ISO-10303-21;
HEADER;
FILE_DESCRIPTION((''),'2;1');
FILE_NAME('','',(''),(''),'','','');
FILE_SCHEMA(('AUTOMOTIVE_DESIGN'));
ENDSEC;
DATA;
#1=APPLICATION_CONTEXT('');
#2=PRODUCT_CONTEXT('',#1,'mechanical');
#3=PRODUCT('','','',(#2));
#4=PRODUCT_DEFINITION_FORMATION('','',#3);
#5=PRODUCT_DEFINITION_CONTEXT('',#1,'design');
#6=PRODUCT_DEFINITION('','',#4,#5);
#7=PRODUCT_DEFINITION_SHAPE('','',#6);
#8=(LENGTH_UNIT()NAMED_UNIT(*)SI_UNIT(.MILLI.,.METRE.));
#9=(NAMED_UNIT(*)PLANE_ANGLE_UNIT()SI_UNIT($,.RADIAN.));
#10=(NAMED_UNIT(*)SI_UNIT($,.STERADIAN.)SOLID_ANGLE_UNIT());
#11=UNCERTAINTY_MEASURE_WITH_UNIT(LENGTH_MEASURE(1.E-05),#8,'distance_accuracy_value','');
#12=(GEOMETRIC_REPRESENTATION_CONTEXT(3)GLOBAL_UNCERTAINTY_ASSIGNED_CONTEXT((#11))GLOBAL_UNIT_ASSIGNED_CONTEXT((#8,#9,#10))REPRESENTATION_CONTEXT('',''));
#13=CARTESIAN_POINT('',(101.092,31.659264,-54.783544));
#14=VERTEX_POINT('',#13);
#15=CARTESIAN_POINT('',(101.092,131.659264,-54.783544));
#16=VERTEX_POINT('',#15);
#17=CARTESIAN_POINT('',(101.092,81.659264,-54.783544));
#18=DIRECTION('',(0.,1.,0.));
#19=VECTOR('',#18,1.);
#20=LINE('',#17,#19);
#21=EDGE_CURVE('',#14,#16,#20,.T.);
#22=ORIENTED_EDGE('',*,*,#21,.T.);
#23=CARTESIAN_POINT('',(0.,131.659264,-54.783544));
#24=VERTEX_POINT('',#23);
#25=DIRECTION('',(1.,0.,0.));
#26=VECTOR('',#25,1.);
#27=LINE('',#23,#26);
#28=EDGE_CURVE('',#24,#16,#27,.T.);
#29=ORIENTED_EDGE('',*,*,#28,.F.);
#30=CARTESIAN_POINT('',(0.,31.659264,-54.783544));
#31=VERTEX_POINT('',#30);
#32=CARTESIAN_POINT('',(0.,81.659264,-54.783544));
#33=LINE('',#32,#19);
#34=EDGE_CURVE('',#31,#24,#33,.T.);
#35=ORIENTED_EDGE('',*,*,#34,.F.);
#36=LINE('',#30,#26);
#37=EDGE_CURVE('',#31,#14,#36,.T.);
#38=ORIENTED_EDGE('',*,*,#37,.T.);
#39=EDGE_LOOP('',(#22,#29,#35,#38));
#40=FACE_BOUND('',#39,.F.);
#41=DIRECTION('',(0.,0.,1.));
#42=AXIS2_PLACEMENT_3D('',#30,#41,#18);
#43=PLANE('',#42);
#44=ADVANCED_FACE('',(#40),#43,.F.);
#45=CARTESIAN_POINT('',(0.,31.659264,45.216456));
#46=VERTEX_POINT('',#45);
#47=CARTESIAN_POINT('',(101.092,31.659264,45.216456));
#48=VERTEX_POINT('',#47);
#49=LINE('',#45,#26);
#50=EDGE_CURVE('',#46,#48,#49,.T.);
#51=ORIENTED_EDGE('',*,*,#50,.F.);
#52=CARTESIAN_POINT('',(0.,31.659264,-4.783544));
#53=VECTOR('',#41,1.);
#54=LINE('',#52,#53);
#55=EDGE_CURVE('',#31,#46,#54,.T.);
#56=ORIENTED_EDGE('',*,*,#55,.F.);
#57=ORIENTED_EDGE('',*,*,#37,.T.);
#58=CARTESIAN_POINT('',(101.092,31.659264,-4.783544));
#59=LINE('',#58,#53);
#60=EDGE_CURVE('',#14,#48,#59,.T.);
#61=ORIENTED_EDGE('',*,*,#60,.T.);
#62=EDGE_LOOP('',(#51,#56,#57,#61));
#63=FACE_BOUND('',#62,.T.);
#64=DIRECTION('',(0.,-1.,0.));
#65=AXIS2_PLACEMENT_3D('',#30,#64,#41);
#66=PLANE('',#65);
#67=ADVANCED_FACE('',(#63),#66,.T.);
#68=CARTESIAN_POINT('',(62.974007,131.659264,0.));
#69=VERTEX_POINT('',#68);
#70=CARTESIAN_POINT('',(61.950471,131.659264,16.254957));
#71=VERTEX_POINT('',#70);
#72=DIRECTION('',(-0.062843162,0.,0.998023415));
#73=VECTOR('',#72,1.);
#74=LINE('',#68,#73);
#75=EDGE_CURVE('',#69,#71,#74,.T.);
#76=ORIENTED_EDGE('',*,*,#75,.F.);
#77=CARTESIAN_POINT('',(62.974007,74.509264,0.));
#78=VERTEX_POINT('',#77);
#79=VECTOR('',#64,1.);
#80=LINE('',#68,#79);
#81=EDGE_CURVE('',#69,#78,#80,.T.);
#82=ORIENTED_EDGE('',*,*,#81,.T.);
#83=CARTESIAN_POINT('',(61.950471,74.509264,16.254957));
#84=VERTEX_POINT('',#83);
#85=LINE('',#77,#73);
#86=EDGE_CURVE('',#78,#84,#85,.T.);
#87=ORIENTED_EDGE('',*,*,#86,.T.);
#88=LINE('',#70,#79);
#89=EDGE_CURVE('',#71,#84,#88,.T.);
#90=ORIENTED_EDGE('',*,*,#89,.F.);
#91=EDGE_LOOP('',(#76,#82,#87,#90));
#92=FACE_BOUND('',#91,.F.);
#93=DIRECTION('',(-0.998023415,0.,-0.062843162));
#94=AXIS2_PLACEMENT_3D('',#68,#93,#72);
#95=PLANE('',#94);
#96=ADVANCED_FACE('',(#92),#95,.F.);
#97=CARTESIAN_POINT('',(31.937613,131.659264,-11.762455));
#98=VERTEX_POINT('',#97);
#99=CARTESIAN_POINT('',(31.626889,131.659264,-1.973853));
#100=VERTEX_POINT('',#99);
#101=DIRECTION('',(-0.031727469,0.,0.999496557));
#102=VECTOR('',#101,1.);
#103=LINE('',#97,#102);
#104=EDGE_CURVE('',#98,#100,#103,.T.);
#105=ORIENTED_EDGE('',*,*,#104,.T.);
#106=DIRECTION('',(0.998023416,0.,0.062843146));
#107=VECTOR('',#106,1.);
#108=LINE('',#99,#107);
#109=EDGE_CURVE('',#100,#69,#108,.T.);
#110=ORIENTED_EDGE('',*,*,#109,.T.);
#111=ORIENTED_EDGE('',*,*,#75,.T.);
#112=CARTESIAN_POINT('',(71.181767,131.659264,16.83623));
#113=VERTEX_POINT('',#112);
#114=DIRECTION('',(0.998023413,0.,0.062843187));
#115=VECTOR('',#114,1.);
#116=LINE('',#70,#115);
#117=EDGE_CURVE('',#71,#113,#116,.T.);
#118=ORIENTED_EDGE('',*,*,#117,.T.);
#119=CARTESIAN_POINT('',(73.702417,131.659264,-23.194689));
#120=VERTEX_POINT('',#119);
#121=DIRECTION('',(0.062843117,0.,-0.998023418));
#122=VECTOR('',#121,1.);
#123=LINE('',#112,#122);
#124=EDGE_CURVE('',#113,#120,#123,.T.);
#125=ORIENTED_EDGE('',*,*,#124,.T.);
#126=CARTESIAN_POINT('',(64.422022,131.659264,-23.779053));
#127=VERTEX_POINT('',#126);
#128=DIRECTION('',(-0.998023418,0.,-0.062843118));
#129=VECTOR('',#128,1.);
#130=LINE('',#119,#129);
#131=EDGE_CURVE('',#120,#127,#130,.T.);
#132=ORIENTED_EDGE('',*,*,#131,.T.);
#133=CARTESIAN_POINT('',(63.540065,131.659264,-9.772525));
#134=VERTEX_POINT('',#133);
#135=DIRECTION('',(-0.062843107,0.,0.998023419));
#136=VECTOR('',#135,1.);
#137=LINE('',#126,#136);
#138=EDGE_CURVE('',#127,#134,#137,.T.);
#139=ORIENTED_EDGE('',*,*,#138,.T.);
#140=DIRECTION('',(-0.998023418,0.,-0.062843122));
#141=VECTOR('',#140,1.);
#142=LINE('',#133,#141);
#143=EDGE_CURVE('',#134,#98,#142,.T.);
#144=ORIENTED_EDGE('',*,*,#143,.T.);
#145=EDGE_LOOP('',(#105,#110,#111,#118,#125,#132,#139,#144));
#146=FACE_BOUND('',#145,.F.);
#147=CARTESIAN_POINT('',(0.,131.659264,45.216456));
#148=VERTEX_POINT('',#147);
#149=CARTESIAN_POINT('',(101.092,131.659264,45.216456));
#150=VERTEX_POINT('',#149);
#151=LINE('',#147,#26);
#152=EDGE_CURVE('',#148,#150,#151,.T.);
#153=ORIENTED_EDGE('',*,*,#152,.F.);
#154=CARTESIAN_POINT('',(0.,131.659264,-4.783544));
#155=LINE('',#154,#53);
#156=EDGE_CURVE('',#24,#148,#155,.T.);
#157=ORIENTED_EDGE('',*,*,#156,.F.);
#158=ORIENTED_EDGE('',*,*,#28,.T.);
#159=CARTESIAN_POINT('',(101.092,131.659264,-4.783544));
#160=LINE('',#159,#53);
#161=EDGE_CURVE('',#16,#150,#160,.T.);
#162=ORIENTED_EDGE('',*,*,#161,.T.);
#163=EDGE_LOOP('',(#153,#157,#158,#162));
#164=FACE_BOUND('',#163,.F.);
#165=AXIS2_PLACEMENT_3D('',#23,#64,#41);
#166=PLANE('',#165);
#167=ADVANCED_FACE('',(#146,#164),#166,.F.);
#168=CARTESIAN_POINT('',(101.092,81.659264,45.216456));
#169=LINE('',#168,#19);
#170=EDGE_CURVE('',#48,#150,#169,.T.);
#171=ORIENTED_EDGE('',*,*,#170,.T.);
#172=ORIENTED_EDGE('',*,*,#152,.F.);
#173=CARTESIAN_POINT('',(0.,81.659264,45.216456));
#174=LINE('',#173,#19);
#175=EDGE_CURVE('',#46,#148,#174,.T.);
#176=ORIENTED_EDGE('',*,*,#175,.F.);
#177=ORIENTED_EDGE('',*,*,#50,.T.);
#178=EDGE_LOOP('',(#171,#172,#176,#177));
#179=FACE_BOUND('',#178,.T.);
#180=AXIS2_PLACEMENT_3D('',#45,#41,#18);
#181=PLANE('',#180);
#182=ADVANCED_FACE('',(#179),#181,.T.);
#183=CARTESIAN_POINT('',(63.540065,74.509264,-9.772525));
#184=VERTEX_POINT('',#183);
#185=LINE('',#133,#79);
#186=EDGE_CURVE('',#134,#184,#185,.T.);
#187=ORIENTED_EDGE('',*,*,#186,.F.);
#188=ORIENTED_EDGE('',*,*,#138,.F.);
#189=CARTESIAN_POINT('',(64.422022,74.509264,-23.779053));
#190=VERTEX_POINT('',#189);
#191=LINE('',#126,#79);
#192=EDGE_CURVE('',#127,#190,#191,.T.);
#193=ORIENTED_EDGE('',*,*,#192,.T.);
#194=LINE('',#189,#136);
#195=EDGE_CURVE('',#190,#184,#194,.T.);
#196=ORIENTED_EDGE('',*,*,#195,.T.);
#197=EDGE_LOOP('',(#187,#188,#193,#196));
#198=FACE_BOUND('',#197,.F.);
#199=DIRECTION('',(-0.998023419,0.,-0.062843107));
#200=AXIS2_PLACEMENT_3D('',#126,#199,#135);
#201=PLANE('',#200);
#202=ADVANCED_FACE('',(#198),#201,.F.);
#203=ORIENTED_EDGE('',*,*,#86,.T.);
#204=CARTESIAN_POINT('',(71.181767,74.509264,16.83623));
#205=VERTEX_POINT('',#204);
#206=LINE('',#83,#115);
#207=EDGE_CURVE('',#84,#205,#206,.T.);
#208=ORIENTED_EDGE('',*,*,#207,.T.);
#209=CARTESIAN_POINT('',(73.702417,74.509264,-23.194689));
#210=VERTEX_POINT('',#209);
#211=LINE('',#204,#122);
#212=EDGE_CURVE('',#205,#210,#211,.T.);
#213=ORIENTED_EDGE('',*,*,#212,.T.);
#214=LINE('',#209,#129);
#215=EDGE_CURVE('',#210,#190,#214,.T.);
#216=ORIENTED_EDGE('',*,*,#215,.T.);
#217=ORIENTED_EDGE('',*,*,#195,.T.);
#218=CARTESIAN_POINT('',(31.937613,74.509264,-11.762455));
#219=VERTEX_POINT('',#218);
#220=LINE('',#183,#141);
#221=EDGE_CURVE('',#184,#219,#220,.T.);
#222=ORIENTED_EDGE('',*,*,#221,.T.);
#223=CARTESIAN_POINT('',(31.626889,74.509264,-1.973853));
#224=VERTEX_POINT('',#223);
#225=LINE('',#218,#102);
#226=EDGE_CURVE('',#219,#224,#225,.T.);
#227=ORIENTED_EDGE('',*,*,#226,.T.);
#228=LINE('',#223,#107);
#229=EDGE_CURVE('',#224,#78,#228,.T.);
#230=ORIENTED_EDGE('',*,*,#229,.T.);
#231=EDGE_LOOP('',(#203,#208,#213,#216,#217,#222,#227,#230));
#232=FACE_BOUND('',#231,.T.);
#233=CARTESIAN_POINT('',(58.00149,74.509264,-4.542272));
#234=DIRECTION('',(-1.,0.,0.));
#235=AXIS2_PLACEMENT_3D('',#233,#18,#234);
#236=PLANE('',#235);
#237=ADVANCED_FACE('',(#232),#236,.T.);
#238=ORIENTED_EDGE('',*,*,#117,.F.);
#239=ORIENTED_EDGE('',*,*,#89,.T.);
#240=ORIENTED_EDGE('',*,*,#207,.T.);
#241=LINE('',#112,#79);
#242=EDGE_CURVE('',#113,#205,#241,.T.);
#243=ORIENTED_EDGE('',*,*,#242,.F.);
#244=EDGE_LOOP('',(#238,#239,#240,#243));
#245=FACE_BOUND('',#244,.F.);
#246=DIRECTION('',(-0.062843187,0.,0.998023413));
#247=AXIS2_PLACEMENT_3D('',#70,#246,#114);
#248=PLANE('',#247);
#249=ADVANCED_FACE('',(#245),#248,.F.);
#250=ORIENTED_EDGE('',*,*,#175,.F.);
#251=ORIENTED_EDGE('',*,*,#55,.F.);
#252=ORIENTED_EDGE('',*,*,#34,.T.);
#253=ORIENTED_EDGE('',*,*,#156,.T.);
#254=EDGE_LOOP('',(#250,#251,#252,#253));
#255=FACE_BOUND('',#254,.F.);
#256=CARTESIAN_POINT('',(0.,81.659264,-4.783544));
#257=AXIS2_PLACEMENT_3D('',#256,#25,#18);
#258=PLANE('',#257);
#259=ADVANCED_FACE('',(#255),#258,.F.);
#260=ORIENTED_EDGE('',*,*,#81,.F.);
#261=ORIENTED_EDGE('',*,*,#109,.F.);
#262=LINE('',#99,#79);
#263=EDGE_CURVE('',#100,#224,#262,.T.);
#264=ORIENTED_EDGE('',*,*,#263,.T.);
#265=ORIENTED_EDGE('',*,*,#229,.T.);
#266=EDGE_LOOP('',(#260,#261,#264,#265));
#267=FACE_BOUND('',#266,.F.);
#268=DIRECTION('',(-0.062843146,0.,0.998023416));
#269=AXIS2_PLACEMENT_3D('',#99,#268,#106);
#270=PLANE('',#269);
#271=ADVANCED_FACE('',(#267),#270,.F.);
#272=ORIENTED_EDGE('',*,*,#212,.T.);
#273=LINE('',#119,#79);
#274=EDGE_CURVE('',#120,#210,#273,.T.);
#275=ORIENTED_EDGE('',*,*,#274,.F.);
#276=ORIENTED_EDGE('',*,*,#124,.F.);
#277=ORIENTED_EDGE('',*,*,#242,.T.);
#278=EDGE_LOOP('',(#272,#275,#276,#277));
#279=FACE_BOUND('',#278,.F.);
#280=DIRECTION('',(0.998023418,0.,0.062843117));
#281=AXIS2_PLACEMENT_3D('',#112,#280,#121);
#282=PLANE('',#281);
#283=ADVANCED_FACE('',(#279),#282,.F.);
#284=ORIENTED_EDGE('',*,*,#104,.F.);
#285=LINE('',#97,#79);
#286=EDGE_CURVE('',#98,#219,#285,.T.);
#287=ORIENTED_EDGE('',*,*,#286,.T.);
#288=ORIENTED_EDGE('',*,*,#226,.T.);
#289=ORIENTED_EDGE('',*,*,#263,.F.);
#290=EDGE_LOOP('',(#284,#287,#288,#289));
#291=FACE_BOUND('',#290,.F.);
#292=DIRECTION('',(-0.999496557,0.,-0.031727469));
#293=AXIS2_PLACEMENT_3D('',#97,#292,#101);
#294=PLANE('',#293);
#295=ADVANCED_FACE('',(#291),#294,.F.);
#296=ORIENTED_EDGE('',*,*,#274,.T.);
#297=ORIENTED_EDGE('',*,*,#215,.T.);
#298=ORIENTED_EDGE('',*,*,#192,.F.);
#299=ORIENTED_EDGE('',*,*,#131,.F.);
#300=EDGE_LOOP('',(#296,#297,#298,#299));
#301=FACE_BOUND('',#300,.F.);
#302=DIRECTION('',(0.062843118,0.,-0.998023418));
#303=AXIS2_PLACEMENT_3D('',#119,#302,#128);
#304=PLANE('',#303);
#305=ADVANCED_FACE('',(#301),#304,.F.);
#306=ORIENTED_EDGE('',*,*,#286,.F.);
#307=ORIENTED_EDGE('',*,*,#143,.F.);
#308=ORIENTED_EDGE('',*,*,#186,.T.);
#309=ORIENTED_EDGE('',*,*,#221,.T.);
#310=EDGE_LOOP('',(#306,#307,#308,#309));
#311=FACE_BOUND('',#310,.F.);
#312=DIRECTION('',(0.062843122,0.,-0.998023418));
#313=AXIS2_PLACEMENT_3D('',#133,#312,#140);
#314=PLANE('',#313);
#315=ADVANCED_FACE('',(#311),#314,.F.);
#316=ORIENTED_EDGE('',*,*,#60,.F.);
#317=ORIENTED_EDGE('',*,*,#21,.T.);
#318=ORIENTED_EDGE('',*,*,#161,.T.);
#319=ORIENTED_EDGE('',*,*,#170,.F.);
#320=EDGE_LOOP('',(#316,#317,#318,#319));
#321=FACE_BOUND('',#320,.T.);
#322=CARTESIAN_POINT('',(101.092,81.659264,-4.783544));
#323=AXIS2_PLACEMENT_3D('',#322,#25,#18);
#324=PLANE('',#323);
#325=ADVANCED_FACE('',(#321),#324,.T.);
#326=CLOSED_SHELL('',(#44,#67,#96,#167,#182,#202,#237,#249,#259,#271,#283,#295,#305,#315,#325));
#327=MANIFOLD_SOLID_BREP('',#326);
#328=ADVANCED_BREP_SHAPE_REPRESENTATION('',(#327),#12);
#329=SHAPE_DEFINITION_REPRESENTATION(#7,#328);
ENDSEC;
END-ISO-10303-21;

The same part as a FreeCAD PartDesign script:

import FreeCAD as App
import Part
import Sketcher
from FreeCAD import Vector
Q = App.Units.Quantity

doc = App.newDocument("Part")
body = doc.addObject("PartDesign::Body", "Body")

sketch1 = doc.addObject("Sketcher::SketchObject", "Sketch")
body.addObject(sketch1)
sketch1.AttachmentSupport = (doc.YZ_Plane, [""])
sketch1.MapMode = "FlatFace"
sketch1.addGeometry([
    Part.LineSegment(Vector(32, 45, 0), Vector(32, -55, 0)),
    Part.LineSegment(Vector(32, -55, 0), Vector(132, -55, 0)),
    Part.LineSegment(Vector(132, -55, 0), Vector(132, 45, 0)),
    Part.LineSegment(Vector(132, 45, 0), Vector(32, 45, 0)),
], False)
sketch1.addConstraint([
    Sketcher.Constraint("Coincident", 0, 2, 1, 1),
    Sketcher.Constraint("Coincident", 1, 2, 2, 1),
    Sketcher.Constraint("Coincident", 2, 2, 3, 1),
    Sketcher.Constraint("Coincident", 3, 2, 0, 1),
    Sketcher.Constraint("Vertical", 0),
    Sketcher.Constraint("Horizontal", 1),
    Sketcher.Constraint("Vertical", 2),
    Sketcher.Constraint("Horizontal", 3),
    Sketcher.Constraint("Equal", 3, 0),
    Sketcher.Constraint("DistanceX", 1, 1, 1, 2, 100.0),
    Sketcher.Constraint("DistanceX", -1, 1, 0, 2, 31.659264),
    Sketcher.Constraint("DistanceY", 0, 2, -1, 1, 54.783544),
])
pad1 = doc.addObject("PartDesign::Pad", "Pad")
body.addObject(pad1)
pad1.Profile = sketch1
pad1.Length = Q("3.98 in")

sketch2 = doc.addObject("Sketcher::SketchObject", "Sketch001")
body.addObject(sketch2)
sketch2.AttachmentSupport = (doc.XZ_Plane, [""])
sketch2.MapMode = "FlatFace"
sketch2.AttachmentOffset = App.Placement(Vector(0, 0, -131.659264), App.Rotation())
sketch2.addGeometry([
    Part.LineSegment(Vector(71, 17, 0), Vector(74, -23, 0)),
    Part.LineSegment(Vector(74, -23, 0), Vector(64, -24, 0)),
    Part.LineSegment(Vector(64, -24, 0), Vector(64, -10, 0)),
    Part.LineSegment(Vector(64, -10, 0), Vector(32, -12, 0)),
    Part.LineSegment(Vector(32, -12, 0), Vector(32, -2, 0)),
    Part.LineSegment(Vector(32, -2, 0), Vector(63, 0, 0)),
    Part.LineSegment(Vector(63, 0, 0), Vector(62, 16, 0)),
    Part.LineSegment(Vector(62, 16, 0), Vector(71, 17, 0)),
], False)
sketch2.addConstraint([
    Sketcher.Constraint("Coincident", 0, 2, 1, 1),
    Sketcher.Constraint("Coincident", 1, 2, 2, 1),
    Sketcher.Constraint("Coincident", 2, 2, 3, 1),
    Sketcher.Constraint("Coincident", 3, 2, 4, 1),
    Sketcher.Constraint("Coincident", 4, 2, 5, 1),
    Sketcher.Constraint("Coincident", 5, 2, 6, 1),
    Sketcher.Constraint("Coincident", 6, 2, 7, 1),
    Sketcher.Constraint("Coincident", 7, 2, 0, 1),
    Sketcher.Constraint("PointOnObject", 5, 2, -1),
    Sketcher.Constraint("Perpendicular", 0, 1),
    Sketcher.Constraint("Perpendicular", 1, 2),
    Sketcher.Constraint("Perpendicular", 2, 3),
    Sketcher.Constraint("Parallel", 3, 5),
    Sketcher.Constraint("Perpendicular", 5, 6),
    Sketcher.Constraint("Perpendicular", 6, 7),
    Sketcher.Constraint("DistanceX", -1, 1, 1, 2, Q("2.5363001 in")),
    Sketcher.Constraint("Distance", 0, 40.1102),
    Sketcher.Constraint("Distance", 5, 31.409201),
    Sketcher.Constraint("DistanceY", 1, 2, 3, 2, 12.016598),
    Sketcher.Constraint("DistanceY", 3, 2, 4, 2, 9.788602),
    Sketcher.Constraint("DistanceX", 2, 2, 7, 2, 7.641702),
    Sketcher.Constraint("Distance", 3, 31.665041),
    Sketcher.Constraint("Distance", 6, 16.28715),
    Sketcher.Constraint("Distance", 7, 9.249579),
])
pocket1 = doc.addObject("PartDesign::Pocket", "Pocket")
body.addObject(pocket1)
pocket1.Profile = sketch2
pocket1.Length = Q("2.25 in")
pocket1.Reversed = True

doc.recompute()
